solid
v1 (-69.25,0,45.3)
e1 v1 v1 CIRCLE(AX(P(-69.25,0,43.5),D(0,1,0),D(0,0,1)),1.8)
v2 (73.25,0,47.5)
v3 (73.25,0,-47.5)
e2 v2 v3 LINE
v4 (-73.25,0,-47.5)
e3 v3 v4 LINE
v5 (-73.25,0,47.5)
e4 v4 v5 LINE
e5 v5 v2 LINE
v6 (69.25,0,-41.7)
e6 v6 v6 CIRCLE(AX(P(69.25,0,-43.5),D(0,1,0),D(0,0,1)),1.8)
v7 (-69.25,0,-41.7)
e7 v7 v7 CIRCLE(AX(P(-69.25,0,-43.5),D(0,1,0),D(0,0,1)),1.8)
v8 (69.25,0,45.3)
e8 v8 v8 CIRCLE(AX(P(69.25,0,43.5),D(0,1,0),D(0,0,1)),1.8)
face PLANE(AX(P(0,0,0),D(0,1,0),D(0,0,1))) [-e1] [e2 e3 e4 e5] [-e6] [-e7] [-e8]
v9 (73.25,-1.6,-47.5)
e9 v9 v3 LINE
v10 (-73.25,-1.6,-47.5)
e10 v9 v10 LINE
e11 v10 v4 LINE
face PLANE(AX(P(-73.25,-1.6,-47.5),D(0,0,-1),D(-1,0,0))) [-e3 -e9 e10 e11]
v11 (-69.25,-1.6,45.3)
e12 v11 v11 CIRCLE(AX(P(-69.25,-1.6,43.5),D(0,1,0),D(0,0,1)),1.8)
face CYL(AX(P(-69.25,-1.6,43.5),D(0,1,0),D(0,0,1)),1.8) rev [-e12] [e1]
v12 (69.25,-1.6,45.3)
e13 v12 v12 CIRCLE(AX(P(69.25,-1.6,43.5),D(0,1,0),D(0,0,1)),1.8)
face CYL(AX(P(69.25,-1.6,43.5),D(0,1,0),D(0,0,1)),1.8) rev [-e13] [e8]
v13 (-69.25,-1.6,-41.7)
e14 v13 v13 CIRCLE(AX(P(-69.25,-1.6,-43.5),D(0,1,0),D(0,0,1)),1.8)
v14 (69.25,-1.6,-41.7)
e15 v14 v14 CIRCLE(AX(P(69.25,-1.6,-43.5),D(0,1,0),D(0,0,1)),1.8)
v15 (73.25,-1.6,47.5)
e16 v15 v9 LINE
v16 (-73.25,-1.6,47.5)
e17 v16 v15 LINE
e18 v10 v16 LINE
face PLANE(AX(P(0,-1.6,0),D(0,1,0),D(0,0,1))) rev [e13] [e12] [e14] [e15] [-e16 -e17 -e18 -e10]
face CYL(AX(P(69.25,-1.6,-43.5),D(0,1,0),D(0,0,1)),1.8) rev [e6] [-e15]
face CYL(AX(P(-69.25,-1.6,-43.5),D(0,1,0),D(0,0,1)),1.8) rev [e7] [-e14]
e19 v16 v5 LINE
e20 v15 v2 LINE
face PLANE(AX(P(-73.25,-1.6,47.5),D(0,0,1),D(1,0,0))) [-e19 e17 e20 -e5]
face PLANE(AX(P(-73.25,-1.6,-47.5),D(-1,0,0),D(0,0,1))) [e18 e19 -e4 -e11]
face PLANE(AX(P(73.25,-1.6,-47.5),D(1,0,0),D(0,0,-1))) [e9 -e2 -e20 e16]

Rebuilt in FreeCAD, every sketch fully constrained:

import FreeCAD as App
import Part
import Sketcher

V = App.Vector


def add_polygon(sketch, points):
    """Adds a closed chain of lines whose ends are joined by coincident constraints."""
    first, n = sketch.GeometryCount, len(points)
    for a, b in zip(points, points[1:] + points[:1]):
        sketch.addGeometry(Part.LineSegment(App.Vector(*a, 0), App.Vector(*b, 0)), False)
    for i in range(n):
        sketch.addConstraint(Sketcher.Constraint("Coincident", first + i, 2, first + (i + 1) % n, 1))

doc = App.newDocument("Part")
body = doc.addObject("PartDesign::Body", "Body")

# Sketch on XZ plane
sketch1 = doc.addObject("Sketcher::SketchObject", "Sketch")
body.addObject(sketch1)
sketch1.AttachmentSupport = (doc.XZ_Plane, [""])
sketch1.MapMode = "FlatFace"
add_polygon(sketch1, [(-73.25, -47.5), (-73.25, 47.5), (73.25, 47.5), (73.25, -47.5)])  # lines 0-3
sketch1.addGeometry(Part.Circle(V(-69.25, 43.5, 0), V(0, 0, 1), 1.8), False)  # 4
sketch1.addGeometry(Part.Circle(V(69.25, 43.5, 0), V(0, 0, 1), 1.8), False)  # 5
sketch1.addGeometry(Part.Circle(V(-69.25, -43.5, 0), V(0, 0, 1), 1.8), False)  # 6
sketch1.addGeometry(Part.Circle(V(69.25, -43.5, 0), V(0, 0, 1), 1.8), False)  # 7
sketch1.addConstraint(Sketcher.Constraint("Vertical", 0))
sketch1.addConstraint(Sketcher.Constraint("Horizontal", 1))
sketch1.addConstraint(Sketcher.Constraint("Vertical", 2))
sketch1.addConstraint(Sketcher.Constraint("Horizontal", 3))
sketch1.addConstraint(Sketcher.Constraint("Equal", 4, 5))
sketch1.addConstraint(Sketcher.Constraint("Equal", 5, 6))
sketch1.addConstraint(Sketcher.Constraint("Equal", 6, 7))
sketch1.addConstraint(Sketcher.Constraint("Symmetric", 5, 3, 6, 3, -1, 1))
sketch1.addConstraint(Sketcher.Constraint("Symmetric", 4, 3, 7, 3, -1, 1))
sketch1.addConstraint(Sketcher.Constraint("Symmetric", 0, 2, 2, 2, -1, 1))
sketch1.addConstraint(Sketcher.Constraint("Symmetric", 4, 3, 5, 3, -2))
sketch1.addConstraint(Sketcher.Constraint("Diameter", 4, 3.6))
sketch1.addConstraint(Sketcher.Constraint("DistanceY", 0, 1, 0, 2, 95.0))
sketch1.addConstraint(Sketcher.Constraint("DistanceX", 1, 1, 1, 2, 146.5))
sketch1.addConstraint(Sketcher.Constraint("DistanceY", 6, 3, 4, 3, 87.0))
sketch1.addConstraint(Sketcher.Constraint("DistanceX", 0, 2, 4, 3, 4.0))
pad1 = doc.addObject("PartDesign::Pad", "Pad")
body.addObject(pad1)
pad1.Profile = sketch1
pad1.Length = 1.6

doc.recompute()
